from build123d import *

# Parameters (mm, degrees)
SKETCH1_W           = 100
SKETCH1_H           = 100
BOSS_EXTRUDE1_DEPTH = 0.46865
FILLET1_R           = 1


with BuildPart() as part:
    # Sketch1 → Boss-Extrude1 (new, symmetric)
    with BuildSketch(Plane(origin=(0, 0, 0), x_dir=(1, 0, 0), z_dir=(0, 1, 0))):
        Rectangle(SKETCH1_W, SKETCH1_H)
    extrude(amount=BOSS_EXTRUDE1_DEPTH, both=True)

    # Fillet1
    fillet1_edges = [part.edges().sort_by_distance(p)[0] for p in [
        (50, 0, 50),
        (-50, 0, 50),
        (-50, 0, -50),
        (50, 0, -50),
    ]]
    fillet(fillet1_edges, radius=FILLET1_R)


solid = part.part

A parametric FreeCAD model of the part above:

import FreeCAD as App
import Part
import Sketcher

V = App.Vector
Q = App.Units.Quantity


def edges_at(feature, points):
    """Names of the edges that pass closest to the given points."""
    edges = feature.Shape.Edges
    near = lambda p: min(range(len(edges)), key=lambda i: edges[i].distToShape(Part.Vertex(*p))[0])
    return sorted({f"Edge{near(p) + 1}" for p in points})


def add_polygon(sketch, points):
    """Adds a closed chain of lines whose ends are joined by coincident constraints."""
    first, n = sketch.GeometryCount, len(points)
    for a, b in zip(points, points[1:] + points[:1]):
        sketch.addGeometry(Part.LineSegment(App.Vector(*a, 0), App.Vector(*b, 0)), False)
    for i in range(n):
        sketch.addConstraint(Sketcher.Constraint("Coincident", first + i, 2, first + (i + 1) % n, 1))

doc = App.newDocument("Part")
body = doc.addObject("PartDesign::Body", "Body")

# Sketch on XZ plane
sketch1 = body.newObject("Sketcher::SketchObject", "Sketch")
sketch1.AttachmentSupport = (doc.getObject("XZ_Plane"), [""])
sketch1.MapMode = "FlatFace"
add_polygon(sketch1, [(-50, -50), (-50, 50), (50, 50), (50, -50)])  # lines 0-3
sketch1.addConstraint(Sketcher.Constraint("Vertical", 0))
sketch1.addConstraint(Sketcher.Constraint("Horizontal", 1))
sketch1.addConstraint(Sketcher.Constraint("Vertical", 2))
sketch1.addConstraint(Sketcher.Constraint("Horizontal", 3))
sketch1.addConstraint(Sketcher.Constraint("Symmetric", 0, 2, 2, 2, -1, 1))
sketch1.addConstraint(Sketcher.Constraint("Equal", 3, 0))
sketch1.addConstraint(Sketcher.Constraint("DistanceX", 1, 1, 1, 2, Q("100 mm")))
pad1 = body.newObject("PartDesign::Pad", "Pad")
pad1.Profile = sketch1
pad1.Length = 0.9373
pad1.Midplane = True
doc.recompute()

fillet = body.newObject("PartDesign::Fillet", "Fillet")
fillet.Base = (pad1, edges_at(pad1, [
    (50, 0, 50),
    (-50, 0, 50),
    (-50, 0, -50),
    (50, 0, -50),
]))
fillet.Radius = 1

doc.recompute()
